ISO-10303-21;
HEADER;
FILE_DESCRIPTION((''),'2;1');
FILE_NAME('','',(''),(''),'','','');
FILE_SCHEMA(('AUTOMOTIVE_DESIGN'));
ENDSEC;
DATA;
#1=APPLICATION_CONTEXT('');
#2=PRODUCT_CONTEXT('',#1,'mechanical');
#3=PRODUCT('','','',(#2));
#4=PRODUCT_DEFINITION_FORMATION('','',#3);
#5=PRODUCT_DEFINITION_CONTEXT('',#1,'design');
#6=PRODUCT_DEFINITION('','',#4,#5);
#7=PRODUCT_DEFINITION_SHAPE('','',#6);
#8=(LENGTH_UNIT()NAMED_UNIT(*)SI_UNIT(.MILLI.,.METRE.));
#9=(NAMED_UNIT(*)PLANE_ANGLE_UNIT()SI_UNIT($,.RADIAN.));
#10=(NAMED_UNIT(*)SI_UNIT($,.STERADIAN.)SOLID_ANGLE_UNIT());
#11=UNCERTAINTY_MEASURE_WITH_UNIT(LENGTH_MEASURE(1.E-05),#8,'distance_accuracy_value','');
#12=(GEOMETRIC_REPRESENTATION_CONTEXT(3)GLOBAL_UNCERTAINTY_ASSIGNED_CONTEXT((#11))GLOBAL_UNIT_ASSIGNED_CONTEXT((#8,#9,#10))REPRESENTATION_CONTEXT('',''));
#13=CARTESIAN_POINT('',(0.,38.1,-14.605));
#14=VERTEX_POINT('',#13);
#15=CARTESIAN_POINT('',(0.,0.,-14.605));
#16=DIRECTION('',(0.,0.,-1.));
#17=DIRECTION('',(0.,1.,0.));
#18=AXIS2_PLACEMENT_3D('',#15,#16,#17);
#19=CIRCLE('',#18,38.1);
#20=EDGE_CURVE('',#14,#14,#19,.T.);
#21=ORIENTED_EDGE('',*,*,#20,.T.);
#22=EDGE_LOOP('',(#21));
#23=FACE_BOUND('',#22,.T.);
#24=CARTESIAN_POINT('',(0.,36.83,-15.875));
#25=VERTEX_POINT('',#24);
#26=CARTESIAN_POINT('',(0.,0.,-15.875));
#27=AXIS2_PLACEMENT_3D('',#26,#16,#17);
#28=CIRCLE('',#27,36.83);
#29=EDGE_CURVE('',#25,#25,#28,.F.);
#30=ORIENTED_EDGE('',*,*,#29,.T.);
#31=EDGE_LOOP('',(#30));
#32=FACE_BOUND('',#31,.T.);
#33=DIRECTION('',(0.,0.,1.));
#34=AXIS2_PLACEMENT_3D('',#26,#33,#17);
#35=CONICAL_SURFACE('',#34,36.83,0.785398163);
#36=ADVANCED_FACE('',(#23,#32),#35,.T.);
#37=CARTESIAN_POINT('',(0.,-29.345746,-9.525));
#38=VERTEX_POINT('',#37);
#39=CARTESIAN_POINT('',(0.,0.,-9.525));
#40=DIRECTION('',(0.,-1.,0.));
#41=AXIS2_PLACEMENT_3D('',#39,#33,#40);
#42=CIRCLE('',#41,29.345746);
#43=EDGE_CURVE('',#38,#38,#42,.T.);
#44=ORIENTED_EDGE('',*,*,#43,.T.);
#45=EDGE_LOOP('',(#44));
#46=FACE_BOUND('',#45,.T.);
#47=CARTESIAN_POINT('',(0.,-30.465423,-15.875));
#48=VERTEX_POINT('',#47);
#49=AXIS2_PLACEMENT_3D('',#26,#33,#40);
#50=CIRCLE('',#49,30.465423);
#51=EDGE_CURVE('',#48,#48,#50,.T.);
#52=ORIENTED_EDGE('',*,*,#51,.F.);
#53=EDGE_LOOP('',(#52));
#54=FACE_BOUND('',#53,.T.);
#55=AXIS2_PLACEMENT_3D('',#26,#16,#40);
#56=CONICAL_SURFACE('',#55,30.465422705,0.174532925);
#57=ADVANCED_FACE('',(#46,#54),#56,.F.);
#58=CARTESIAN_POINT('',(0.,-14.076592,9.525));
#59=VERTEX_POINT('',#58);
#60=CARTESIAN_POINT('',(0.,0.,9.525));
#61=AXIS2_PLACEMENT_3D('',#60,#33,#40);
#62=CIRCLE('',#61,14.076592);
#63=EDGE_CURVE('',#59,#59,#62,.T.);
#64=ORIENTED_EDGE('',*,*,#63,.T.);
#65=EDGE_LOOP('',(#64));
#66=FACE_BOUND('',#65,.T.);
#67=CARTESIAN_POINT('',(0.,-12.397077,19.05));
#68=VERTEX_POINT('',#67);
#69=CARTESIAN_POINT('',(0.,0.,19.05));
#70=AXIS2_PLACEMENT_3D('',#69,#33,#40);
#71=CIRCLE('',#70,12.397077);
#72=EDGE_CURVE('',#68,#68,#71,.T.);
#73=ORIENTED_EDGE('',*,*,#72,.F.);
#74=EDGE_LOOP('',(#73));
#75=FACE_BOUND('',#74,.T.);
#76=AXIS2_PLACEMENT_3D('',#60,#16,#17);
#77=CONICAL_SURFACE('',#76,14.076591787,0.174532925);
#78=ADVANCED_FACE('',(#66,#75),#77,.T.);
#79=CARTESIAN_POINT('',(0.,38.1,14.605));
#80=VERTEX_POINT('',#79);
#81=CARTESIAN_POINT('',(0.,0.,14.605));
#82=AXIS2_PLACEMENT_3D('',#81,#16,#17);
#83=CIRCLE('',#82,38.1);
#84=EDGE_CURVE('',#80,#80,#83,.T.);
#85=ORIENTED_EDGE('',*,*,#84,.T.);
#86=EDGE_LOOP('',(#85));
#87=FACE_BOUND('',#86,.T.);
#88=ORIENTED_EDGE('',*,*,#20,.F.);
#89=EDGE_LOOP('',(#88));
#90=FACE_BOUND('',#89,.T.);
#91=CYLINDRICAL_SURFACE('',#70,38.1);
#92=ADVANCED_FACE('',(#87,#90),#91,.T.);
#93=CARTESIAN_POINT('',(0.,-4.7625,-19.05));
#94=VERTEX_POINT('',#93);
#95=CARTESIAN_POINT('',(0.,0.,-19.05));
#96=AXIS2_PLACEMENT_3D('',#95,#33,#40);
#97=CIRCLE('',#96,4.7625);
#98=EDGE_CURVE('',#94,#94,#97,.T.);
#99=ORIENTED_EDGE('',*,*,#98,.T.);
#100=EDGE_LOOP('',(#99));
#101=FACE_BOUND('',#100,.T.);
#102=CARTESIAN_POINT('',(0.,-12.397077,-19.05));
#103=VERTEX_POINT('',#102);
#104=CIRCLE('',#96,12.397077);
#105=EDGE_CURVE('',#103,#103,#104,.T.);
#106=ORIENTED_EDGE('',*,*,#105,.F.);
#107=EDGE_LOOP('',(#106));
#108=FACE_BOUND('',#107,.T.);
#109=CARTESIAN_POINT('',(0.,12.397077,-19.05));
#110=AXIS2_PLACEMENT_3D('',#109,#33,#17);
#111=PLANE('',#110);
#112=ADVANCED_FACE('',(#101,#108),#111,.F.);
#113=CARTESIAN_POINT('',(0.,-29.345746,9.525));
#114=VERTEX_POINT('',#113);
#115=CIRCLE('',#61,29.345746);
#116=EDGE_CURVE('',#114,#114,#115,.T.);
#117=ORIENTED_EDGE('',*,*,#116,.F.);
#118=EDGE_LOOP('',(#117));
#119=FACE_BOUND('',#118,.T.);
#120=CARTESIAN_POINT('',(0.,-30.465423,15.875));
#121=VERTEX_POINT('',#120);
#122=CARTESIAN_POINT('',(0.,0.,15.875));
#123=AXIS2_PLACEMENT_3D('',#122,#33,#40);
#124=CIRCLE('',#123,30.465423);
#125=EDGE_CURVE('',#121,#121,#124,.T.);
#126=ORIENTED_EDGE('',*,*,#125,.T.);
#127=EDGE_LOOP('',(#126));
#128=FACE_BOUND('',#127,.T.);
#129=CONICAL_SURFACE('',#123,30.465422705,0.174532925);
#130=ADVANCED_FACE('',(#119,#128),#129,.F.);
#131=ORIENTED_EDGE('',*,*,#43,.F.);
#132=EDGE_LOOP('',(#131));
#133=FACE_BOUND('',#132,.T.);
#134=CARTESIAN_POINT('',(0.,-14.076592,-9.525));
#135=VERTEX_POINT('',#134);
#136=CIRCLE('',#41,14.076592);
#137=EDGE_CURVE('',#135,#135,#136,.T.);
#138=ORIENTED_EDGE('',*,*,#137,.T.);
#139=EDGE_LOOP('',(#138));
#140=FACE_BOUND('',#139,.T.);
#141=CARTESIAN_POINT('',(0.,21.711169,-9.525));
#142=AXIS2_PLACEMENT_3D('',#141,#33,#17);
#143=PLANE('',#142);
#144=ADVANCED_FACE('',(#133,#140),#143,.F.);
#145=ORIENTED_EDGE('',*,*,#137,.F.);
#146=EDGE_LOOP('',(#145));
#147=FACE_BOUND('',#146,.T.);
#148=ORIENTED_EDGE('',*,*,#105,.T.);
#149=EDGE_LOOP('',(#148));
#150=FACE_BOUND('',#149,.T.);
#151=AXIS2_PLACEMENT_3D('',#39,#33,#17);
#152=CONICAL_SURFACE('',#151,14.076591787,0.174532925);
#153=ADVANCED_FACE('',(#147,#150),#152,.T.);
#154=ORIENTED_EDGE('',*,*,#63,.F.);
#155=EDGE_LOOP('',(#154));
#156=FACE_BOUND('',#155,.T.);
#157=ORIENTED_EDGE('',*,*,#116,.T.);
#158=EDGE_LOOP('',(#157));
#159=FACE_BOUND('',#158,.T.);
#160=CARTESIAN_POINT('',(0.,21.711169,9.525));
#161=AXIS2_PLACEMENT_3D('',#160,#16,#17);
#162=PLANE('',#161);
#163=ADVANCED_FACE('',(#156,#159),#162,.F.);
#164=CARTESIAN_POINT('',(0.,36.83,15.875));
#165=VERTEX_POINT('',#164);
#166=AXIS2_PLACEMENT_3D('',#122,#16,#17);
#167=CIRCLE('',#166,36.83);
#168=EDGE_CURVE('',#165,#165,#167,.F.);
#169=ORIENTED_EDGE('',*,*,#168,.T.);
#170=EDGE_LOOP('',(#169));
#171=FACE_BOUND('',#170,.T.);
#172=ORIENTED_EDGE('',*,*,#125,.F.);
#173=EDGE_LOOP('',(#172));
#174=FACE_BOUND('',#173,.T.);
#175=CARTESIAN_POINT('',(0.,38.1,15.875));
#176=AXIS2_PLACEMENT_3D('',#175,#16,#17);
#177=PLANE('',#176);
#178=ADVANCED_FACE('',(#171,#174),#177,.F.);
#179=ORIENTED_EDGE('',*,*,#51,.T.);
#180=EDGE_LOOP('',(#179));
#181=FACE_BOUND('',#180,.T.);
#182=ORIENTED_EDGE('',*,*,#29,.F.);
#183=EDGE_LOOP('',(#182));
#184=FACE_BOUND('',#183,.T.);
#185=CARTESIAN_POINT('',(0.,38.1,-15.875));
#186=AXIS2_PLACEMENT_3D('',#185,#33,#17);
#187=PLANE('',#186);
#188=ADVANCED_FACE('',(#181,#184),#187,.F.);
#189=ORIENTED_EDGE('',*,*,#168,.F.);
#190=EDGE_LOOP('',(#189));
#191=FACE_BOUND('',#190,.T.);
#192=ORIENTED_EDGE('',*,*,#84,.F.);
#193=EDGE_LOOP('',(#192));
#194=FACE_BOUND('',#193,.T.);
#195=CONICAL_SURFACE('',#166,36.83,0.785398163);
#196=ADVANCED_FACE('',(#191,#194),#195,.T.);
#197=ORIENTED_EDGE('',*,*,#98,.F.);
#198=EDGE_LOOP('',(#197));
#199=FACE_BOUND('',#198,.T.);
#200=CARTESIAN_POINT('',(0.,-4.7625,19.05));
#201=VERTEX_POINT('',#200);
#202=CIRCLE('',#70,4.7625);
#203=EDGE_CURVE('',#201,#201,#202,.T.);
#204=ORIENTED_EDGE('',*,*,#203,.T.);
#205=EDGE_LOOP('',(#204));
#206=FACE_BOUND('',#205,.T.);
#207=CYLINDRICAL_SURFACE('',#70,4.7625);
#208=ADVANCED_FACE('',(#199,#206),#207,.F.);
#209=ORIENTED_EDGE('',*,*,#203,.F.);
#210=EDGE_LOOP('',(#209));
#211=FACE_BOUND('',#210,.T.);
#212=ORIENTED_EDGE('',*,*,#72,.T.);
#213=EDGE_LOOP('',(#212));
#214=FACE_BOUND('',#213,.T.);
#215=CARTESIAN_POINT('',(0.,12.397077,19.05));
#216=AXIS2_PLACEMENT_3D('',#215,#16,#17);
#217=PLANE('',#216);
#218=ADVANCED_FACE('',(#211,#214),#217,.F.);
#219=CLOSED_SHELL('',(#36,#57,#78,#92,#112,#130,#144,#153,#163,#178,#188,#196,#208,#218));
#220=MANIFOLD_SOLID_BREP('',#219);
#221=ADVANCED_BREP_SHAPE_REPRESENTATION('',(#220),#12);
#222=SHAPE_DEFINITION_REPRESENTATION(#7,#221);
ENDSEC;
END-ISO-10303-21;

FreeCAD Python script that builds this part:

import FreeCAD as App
import Part
import Sketcher
from FreeCAD import Vector
Q = App.Units.Quantity


def edges_at(feature, points):
    """Names of the edges that pass closest to the given points."""
    edges = feature.Shape.Edges
    near = lambda p: min(range(len(edges)), key=lambda i: edges[i].distToShape(Part.Vertex(*p))[0])
    return sorted({f"Edge{near(p) + 1}" for p in points})

doc = App.newDocument("Part")
body = doc.addObject("PartDesign::Body", "Body")

# Sketch on YZ plane
sketch1 = body.newObject("Sketcher::SketchObject", "Sketch")
sketch1.AttachmentSupport = (doc.getObject("YZ_Plane"), [""])
sketch1.MapMode = "FlatFace"
sketch1.addGeometry([
    Part.LineSegment(Vector(38.1, 0, 0), Vector(38.1, 15.875, 0)),  # 0
    Part.LineSegment(Vector(38.1, 15.875, 0), Vector(30.465423, 15.875, 0)),  # 1
    Part.LineSegment(Vector(30.465423, 15.875, 0), Vector(29.345746, 9.525, 0)),  # 2
    Part.LineSegment(Vector(29.345746, 9.525, 0), Vector(14.076592, 9.525, 0)),  # 3
    Part.LineSegment(Vector(14.076592, 9.525, 0), Vector(12.397077, 19.05, 0)),  # 4
    Part.LineSegment(Vector(12.397077, 19.05, 0), Vector(4.7625, 19.05, 0)),  # 5
    Part.LineSegment(Vector(4.7625, 19.05, 0), Vector(4.7625, 0, 0)),  # 6
    Part.LineSegment(Vector(4.7625, 0, 0), Vector(38.1, 0, 0)),  # 7
], False)
sketch1.addConstraint([
    Sketcher.Constraint("Coincident", 0, 2, 1, 1),
    Sketcher.Constraint("Coincident", 1, 2, 2, 1),
    Sketcher.Constraint("Coincident", 2, 2, 3, 1),
    Sketcher.Constraint("Coincident", 3, 2, 4, 1),
    Sketcher.Constraint("Coincident", 4, 2, 5, 1),
    Sketcher.Constraint("Coincident", 5, 2, 6, 1),
    Sketcher.Constraint("Coincident", 6, 2, 7, 1),
    Sketcher.Constraint("Coincident", 7, 2, 0, 1),
    Sketcher.Constraint("Vertical", 0),
    Sketcher.Constraint("Horizontal", 1),
    Sketcher.Constraint("Horizontal", 3),
    Sketcher.Constraint("Horizontal", 5),
    Sketcher.Constraint("Vertical", 6),
    Sketcher.Constraint("Horizontal", 7),
    Sketcher.Constraint("PointOnObject", 6, 2, -1),
    Sketcher.Constraint("Equal", 1, 5),
    Sketcher.Constraint("Angle", 2, Q("-100 deg")),
    Sketcher.Constraint("Angle", 4, Q("100 deg")),
    Sketcher.Constraint("DistanceY", 6, 2, 6, 1, Q("0.75 in")),
    Sketcher.Constraint("DistanceX", -1, 1, 0, 2, Q("1.5 in")),
    Sketcher.Constraint("DistanceX", 7, 1, 7, 2, Q("1.3125 in")),
    Sketcher.Constraint("DistanceY", 0, 1, 0, 2, Q("0.625 in")),
    Sketcher.Constraint("DistanceY", 2, 2, 1, 2, Q("0.25 in")),
    Sketcher.Constraint("DistanceX", 1, 2, 1, 1, 7.634577),
])
revolution = body.newObject("PartDesign::Revolution", "Revolution")
revolution.Profile = sketch1
revolution.ReferenceAxis = (sketch1, ["V_Axis"])
revolution.Angle = 360
doc.recompute()

chamfer = body.newObject("PartDesign::Chamfer", "Chamfer")
chamfer.Base = (revolution, edges_at(revolution, [(0, 38.1, 15.875)]))
chamfer.Size = Q("0.05 in")
body2 = doc.addObject("PartDesign::Body", "Body001")
doc.recompute()

body2.BaseFeature = body
doc.recompute()

mirroring = doc.addObject("Part::Mirroring", "Mirroring")
mirroring.Source = body
mirroring.Base = Vector(0, 0, 0)
mirroring.Normal = Vector(0, 0, 1)
body3 = doc.addObject("PartDesign::Body", "Body002")
body3.BaseFeature = mirroring
boolean = body2.newObject("PartDesign::Boolean", "Boolean")
boolean.Type = "Fuse"
boolean.addObjects([body3])
doc.recompute()
mirroring.Visibility = False

doc.recompute()
